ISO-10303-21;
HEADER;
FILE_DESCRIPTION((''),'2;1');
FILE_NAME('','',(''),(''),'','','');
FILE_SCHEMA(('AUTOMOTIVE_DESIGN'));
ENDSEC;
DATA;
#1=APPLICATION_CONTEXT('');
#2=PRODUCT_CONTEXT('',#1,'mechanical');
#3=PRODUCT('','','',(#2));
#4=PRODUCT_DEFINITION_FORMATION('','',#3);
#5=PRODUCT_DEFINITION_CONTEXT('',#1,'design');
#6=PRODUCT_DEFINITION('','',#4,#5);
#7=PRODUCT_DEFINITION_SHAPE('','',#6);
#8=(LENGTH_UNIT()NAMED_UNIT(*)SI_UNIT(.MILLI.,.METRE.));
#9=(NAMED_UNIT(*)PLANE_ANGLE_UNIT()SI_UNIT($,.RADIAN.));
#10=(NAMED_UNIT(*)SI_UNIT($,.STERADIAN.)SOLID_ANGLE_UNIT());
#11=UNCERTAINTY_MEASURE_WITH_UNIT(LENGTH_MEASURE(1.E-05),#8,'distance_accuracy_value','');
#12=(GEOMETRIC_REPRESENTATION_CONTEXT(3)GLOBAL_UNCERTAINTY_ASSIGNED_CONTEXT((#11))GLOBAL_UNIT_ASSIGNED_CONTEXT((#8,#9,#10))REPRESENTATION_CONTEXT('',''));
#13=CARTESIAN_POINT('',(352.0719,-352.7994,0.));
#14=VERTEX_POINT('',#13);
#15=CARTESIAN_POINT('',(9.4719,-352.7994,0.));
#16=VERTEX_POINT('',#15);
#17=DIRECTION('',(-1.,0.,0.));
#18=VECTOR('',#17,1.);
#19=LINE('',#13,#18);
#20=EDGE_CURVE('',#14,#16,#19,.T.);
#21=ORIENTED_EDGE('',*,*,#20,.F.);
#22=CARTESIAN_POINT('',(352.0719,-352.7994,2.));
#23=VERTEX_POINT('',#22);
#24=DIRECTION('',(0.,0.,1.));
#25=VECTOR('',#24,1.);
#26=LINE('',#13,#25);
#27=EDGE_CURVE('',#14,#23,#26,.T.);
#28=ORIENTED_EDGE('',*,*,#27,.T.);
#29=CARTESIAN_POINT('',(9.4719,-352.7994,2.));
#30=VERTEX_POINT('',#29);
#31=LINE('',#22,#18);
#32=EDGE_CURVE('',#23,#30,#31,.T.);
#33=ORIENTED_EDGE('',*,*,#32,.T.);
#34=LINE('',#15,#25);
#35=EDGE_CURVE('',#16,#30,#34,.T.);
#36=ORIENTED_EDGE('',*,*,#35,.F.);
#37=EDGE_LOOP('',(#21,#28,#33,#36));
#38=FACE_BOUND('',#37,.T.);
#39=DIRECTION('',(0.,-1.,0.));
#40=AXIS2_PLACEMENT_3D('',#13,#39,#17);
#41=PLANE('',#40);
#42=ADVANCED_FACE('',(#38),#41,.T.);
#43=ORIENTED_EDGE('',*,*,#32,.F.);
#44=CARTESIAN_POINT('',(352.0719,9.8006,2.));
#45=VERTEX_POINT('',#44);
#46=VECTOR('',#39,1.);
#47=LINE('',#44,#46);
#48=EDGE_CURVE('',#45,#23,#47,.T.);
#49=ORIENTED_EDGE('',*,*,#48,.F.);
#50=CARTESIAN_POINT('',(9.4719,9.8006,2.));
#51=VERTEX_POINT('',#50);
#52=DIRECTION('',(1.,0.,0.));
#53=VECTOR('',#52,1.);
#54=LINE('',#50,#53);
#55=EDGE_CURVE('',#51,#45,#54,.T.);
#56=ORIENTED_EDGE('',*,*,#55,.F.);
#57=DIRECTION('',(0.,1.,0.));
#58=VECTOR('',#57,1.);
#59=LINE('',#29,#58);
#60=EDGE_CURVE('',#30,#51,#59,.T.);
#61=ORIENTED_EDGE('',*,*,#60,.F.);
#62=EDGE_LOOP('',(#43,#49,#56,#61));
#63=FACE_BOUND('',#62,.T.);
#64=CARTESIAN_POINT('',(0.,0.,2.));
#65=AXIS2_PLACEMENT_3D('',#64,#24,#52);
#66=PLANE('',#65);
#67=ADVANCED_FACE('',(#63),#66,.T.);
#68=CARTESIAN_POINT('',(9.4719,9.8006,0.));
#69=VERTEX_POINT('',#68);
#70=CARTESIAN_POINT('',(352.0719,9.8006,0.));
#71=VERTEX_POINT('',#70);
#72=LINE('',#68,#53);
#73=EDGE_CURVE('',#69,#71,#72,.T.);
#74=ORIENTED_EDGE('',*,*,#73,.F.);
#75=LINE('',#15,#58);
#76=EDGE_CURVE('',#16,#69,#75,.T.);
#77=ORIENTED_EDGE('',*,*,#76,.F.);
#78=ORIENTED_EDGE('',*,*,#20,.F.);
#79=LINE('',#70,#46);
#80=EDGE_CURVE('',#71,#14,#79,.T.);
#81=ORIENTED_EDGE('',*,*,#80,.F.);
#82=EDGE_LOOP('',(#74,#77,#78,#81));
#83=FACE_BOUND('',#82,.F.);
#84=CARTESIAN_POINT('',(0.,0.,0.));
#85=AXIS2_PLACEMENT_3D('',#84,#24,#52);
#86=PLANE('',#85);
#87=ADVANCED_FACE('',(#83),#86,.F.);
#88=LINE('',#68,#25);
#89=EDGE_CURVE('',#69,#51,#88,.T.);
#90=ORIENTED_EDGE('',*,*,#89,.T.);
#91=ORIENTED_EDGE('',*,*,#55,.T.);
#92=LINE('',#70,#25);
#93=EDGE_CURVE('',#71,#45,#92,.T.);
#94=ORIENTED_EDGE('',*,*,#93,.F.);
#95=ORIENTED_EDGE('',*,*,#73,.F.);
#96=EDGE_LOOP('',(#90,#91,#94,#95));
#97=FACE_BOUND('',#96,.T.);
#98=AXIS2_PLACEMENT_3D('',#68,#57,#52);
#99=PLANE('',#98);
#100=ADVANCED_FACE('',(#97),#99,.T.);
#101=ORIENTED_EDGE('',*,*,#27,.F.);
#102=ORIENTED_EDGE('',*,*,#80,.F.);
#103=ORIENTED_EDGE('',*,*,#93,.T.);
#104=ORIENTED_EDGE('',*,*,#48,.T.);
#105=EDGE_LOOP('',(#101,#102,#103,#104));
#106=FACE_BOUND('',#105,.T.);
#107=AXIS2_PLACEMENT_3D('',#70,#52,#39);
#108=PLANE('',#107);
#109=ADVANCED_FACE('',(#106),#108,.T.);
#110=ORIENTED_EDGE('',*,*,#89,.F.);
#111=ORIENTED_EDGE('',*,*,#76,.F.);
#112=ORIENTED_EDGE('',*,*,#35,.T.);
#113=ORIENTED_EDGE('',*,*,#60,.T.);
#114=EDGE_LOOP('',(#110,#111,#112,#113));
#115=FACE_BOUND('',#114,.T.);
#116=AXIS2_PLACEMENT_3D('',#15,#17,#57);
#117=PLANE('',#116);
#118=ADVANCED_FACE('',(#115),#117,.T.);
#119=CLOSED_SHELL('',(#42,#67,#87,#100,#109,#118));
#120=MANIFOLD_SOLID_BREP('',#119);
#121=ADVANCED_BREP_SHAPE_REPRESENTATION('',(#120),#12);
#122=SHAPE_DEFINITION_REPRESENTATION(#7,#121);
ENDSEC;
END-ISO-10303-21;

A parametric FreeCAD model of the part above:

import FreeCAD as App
import Part
import Sketcher

V = App.Vector


def add_polygon(sketch, points):
    """Adds a closed chain of lines whose ends are joined by coincident constraints."""
    first, n = sketch.GeometryCount, len(points)
    for a, b in zip(points, points[1:] + points[:1]):
        sketch.addGeometry(Part.LineSegment(App.Vector(*a, 0), App.Vector(*b, 0)), False)
    for i in range(n):
        sketch.addConstraint(Sketcher.Constraint("Coincident", first + i, 2, first + (i + 1) % n, 1))

doc = App.newDocument("Part")
body = doc.addObject("PartDesign::Body", "Body")

sketch1 = doc.addObject("Sketcher::SketchObject", "Sketch")
body.addObject(sketch1)
sketch1.AttachmentSupport = (doc.XY_Plane, [""])
sketch1.MapMode = "FlatFace"
add_polygon(sketch1, [(352, 10), (9, 10), (9, -353), (352, -353)])
sketch1.addConstraint([
    Sketcher.Constraint("Horizontal", 0),
    Sketcher.Constraint("Vertical", 1),
    Sketcher.Constraint("Horizontal", 2),
    Sketcher.Constraint("Vertical", 3),
    Sketcher.Constraint("DistanceX", 0, 2, 0, 1, 342.6),
    Sketcher.Constraint("DistanceY", 1, 2, 1, 1, 362.6),
    Sketcher.Constraint("DistanceX", -1, 1, 0, 2, 9.472),
    Sketcher.Constraint("DistanceY", -1, 1, 0, 2, 9.8006),
])
pad1 = doc.addObject("PartDesign::Pad", "Pad")
body.addObject(pad1)
pad1.Profile = sketch1
pad1.Length = 2

doc.recompute()
